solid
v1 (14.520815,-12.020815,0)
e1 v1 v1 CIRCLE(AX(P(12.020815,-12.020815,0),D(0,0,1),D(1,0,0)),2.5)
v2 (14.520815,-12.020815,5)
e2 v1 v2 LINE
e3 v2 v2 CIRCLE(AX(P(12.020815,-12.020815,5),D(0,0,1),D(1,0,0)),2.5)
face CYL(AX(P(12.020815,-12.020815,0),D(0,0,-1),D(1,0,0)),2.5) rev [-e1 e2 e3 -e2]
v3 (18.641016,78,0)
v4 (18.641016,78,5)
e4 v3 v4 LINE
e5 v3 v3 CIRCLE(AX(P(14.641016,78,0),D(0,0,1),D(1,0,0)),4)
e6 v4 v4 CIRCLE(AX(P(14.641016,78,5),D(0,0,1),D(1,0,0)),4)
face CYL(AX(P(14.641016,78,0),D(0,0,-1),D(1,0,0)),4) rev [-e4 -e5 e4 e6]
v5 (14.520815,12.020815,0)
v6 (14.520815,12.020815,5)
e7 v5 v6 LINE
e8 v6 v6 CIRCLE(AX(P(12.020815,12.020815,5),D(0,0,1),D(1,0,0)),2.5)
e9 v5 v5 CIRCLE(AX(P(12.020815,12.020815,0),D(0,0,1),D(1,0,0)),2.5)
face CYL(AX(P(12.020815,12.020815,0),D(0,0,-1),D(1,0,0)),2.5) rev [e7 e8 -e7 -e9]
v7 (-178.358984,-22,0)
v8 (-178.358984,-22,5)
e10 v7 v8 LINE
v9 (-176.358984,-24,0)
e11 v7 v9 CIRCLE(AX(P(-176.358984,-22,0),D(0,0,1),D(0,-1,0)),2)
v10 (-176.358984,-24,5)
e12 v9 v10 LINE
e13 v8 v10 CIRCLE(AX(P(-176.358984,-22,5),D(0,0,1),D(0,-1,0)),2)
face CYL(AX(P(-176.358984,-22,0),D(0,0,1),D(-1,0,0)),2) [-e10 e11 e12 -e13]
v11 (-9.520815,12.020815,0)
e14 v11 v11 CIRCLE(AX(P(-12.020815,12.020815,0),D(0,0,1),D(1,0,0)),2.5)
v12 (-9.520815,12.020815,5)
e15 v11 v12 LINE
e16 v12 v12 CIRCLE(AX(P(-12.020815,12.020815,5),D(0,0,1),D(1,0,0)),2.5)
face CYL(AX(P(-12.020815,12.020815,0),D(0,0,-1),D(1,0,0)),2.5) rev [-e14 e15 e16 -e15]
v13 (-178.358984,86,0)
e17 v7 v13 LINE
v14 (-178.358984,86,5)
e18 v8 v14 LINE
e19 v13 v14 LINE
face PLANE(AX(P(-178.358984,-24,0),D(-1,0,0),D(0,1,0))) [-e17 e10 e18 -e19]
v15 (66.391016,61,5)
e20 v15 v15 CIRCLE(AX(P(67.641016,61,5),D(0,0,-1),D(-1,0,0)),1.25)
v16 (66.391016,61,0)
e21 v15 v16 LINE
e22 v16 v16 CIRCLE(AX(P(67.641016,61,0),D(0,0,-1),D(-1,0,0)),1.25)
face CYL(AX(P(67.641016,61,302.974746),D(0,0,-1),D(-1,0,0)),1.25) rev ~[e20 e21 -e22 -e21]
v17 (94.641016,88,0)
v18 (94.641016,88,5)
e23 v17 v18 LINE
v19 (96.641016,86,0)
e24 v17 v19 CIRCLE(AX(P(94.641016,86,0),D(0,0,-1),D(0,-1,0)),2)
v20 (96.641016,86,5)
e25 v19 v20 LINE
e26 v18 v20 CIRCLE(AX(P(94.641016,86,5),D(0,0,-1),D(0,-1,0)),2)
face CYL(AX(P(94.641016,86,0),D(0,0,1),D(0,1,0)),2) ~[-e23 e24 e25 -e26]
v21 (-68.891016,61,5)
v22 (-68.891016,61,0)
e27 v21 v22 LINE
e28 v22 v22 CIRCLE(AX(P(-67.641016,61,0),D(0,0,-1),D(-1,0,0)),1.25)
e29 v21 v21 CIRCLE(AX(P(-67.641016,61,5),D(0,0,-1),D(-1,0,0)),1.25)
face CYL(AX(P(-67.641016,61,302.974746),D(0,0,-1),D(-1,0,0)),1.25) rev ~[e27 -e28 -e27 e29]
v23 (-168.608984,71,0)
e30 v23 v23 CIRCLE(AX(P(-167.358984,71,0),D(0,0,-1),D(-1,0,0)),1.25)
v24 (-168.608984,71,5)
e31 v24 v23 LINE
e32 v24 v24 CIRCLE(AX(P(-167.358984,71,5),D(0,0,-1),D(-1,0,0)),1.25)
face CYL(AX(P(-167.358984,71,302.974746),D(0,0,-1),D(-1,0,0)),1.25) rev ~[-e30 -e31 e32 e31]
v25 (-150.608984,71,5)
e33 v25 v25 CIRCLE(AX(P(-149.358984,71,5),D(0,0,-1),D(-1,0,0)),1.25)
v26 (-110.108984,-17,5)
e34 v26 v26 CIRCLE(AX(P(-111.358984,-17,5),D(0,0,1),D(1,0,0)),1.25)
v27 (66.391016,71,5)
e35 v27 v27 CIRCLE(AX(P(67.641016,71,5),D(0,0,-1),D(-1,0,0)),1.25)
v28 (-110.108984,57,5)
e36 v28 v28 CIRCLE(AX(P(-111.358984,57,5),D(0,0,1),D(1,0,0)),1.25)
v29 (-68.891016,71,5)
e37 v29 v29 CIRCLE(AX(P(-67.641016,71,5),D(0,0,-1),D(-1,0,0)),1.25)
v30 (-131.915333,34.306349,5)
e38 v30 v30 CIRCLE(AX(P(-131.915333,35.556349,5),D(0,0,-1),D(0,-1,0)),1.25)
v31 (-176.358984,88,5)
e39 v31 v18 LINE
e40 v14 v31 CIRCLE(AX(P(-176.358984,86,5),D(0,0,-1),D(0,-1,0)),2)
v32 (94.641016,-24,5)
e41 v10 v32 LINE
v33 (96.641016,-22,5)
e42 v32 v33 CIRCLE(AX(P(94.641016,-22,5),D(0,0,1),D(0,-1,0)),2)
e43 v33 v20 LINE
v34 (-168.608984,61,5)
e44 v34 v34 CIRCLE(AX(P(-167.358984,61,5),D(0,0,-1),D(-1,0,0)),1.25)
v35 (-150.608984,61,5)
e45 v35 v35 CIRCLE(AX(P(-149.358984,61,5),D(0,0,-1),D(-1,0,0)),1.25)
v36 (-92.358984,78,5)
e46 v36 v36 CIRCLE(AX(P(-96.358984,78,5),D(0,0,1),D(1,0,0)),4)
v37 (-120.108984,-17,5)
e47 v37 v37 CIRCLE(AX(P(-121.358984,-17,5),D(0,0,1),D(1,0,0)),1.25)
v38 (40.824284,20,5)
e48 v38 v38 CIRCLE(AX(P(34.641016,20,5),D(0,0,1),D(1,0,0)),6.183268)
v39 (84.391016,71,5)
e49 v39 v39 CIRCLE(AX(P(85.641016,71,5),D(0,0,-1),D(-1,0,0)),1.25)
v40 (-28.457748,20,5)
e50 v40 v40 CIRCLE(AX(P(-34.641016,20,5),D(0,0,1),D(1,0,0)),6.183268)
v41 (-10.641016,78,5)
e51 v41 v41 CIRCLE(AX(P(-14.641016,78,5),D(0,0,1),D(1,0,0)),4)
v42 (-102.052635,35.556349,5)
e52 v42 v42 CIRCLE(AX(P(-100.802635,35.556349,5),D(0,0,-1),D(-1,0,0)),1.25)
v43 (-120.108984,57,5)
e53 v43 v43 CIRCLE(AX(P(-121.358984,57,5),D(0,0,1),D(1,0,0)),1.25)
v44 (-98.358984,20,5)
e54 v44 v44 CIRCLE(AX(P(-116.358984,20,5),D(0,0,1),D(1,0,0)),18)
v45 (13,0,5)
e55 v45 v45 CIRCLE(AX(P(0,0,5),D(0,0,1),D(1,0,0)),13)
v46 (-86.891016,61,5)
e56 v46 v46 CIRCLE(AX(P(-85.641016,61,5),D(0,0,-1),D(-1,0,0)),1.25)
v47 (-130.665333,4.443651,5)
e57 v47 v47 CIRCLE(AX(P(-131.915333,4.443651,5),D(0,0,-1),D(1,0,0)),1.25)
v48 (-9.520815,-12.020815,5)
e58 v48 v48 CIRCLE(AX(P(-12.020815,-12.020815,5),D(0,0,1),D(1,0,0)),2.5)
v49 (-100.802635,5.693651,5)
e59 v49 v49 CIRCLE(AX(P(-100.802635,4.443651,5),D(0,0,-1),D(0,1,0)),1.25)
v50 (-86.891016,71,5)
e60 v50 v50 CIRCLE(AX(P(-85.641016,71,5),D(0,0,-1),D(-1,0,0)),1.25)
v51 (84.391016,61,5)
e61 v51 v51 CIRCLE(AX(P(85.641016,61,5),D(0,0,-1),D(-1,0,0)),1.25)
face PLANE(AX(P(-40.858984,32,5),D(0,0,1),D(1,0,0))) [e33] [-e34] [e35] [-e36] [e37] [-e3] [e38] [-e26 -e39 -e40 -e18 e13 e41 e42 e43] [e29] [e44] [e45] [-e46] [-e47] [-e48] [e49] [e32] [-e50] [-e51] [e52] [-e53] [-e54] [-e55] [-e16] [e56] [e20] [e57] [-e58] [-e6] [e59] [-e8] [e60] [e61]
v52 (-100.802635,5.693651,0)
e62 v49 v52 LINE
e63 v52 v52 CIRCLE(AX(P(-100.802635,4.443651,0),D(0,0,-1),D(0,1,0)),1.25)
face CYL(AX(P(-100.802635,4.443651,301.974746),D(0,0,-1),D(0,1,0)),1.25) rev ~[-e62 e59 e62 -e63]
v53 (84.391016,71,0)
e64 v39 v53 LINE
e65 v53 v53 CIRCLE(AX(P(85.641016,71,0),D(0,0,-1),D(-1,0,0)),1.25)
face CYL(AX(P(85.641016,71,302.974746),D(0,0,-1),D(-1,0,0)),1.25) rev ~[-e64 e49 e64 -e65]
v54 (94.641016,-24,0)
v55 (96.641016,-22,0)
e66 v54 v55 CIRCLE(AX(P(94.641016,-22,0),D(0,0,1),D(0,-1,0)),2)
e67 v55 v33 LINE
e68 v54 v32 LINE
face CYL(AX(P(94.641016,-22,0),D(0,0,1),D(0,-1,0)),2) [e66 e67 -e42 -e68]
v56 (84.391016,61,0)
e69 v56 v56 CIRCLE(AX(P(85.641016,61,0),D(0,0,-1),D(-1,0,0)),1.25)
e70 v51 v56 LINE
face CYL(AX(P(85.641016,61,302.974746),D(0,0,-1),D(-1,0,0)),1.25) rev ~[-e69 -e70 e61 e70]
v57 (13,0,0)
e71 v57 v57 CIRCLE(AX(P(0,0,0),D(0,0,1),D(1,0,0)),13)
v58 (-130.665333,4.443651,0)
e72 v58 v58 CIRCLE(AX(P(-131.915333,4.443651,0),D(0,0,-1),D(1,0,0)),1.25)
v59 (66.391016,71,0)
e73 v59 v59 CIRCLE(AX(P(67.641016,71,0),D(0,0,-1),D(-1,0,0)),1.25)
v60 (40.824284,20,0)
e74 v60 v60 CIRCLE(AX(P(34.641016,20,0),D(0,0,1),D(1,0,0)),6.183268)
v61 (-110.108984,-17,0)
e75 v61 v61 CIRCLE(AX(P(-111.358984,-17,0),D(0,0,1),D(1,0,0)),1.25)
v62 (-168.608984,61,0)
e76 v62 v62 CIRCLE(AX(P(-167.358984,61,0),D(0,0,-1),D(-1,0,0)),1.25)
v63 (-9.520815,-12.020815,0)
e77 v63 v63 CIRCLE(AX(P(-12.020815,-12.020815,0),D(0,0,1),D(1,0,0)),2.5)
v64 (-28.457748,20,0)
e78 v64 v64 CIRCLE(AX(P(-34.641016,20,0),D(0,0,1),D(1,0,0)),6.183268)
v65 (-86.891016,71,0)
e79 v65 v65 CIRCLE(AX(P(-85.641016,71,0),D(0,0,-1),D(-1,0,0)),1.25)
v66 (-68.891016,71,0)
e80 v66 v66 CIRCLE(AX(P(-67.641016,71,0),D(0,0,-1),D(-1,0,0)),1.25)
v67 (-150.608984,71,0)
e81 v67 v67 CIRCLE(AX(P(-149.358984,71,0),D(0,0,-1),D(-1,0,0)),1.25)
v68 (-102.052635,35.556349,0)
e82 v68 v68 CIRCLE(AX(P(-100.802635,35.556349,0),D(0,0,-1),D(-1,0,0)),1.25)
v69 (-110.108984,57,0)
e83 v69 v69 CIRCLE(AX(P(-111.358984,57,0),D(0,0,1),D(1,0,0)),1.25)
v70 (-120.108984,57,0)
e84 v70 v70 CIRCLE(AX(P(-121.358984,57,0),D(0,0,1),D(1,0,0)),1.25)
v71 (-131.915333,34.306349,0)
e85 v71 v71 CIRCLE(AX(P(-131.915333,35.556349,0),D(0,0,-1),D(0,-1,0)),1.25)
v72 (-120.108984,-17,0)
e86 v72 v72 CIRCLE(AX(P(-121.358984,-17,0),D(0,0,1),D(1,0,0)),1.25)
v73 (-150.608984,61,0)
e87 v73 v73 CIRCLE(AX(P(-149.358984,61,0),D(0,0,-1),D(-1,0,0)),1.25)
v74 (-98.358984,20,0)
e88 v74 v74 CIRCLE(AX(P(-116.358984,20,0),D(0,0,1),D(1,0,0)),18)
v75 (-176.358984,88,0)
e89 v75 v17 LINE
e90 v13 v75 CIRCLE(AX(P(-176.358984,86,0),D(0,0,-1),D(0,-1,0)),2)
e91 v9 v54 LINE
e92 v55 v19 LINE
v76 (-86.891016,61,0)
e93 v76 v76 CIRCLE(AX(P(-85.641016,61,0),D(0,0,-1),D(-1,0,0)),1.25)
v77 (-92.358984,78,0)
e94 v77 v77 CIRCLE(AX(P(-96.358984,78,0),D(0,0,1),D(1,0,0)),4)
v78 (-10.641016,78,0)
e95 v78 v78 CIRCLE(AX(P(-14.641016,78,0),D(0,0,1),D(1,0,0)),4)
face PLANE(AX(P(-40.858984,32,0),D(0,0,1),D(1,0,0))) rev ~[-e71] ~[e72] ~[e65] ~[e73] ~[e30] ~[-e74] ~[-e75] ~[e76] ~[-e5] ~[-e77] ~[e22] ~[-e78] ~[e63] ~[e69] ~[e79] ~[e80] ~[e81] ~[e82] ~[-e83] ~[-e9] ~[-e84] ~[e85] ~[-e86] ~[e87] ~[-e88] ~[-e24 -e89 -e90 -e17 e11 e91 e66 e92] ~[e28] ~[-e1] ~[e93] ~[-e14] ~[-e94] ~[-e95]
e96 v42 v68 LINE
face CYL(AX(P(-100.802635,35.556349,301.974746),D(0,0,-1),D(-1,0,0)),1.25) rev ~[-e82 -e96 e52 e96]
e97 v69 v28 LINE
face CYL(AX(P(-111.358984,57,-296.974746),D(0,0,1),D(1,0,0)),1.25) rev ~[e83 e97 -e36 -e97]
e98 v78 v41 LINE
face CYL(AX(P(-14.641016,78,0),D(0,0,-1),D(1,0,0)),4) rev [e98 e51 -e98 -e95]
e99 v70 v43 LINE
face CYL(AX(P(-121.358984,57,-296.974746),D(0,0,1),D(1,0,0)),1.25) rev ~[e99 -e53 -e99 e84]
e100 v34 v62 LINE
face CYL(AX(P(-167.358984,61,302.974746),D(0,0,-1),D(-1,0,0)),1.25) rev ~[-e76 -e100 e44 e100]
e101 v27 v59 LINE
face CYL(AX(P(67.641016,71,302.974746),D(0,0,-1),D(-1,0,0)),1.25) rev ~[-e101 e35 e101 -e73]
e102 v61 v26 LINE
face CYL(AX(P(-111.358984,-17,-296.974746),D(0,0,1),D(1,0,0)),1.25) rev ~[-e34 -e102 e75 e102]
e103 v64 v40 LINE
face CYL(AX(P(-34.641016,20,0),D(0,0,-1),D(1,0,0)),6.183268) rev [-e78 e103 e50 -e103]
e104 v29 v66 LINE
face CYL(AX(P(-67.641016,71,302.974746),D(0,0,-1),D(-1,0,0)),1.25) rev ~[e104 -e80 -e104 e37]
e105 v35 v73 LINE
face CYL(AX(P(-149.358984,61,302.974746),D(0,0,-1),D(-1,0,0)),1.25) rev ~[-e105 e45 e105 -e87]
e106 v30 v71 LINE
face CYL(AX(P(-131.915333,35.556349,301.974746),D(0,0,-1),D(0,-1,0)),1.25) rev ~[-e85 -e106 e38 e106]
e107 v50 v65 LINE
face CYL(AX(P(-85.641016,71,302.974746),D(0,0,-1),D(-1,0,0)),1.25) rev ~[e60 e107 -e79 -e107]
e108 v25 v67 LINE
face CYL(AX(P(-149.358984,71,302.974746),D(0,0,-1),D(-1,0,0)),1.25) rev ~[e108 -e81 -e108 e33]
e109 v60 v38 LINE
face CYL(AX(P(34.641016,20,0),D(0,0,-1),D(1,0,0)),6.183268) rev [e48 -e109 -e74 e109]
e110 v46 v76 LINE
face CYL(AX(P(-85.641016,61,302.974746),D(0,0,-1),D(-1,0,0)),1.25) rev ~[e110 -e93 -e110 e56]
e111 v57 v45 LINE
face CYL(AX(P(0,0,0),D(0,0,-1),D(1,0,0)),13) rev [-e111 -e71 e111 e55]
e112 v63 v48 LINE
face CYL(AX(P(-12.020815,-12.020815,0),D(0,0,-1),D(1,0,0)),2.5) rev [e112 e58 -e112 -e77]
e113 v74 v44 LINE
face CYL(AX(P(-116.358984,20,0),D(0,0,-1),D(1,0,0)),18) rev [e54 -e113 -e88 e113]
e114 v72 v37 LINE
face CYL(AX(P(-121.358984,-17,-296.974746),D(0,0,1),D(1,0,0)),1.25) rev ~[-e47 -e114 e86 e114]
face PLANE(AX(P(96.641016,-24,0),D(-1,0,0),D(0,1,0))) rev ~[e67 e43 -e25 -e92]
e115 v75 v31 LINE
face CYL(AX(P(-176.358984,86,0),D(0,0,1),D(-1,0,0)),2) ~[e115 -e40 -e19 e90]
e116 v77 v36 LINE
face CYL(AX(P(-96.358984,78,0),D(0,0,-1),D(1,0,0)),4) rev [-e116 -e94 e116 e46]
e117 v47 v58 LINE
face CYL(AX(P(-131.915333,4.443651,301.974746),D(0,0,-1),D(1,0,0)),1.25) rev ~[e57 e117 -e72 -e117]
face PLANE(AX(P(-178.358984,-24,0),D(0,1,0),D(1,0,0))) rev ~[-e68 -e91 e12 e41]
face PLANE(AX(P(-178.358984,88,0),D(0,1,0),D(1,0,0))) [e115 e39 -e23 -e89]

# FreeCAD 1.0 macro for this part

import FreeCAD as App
import Part
import Sketcher

V = App.Vector
Q = App.Units.Quantity


def edges_at(feature, points):
    """Names of the edges that pass closest to the given points."""
    edges = feature.Shape.Edges
    near = lambda p: min(range(len(edges)), key=lambda i: edges[i].distToShape(Part.Vertex(*p))[0])
    return sorted({f"Edge{near(p) + 1}" for p in points})


def add_polygon(sketch, points):
    """Adds a closed chain of lines whose ends are joined by coincident constraints."""
    first, n = sketch.GeometryCount, len(points)
    for a, b in zip(points, points[1:] + points[:1]):
        sketch.addGeometry(Part.LineSegment(App.Vector(*a, 0), App.Vector(*b, 0)), False)
    for i in range(n):
        sketch.addConstraint(Sketcher.Constraint("Coincident", first + i, 2, first + (i + 1) % n, 1))

doc = App.newDocument("Part")
body = doc.addObject("PartDesign::Body", "Body")

# Sketch on XY plane
sketch1 = body.newObject("Sketcher::SketchObject", "Sketch")
sketch1.AttachmentSupport = (doc.getObject("XY_Plane"), [""])
sketch1.MapMode = "FlatFace"
add_polygon(sketch1, [(-178.4, 88), (-178.4, -24), (96.6, -24), (96.6, 88)])  # lines 0-3
sketch1.addGeometry(Part.Circle(V(-116.4, 20, 0), V(0, 0, 1), 18), False)  # 4
sketch1.addGeometry(Part.Circle(V(-12, -12, 0), V(0, 0, 1), 2.5), False)  # 5
sketch1.addGeometry(Part.Circle(V(12, -12, 0), V(0, 0, 1), 2.5), False)  # 6
sketch1.addGeometry(Part.Circle(V(0, 0, 0), V(0, 0, 1), 13), False)  # 7
sketch1.addGeometry(Part.Circle(V(-34.6, 20, 0), V(0, 0, 1), 6.2), False)  # 8
sketch1.addGeometry(Part.Circle(V(-12, 12, 0), V(0, 0, 1), 2.5), False)  # 9
sketch1.addGeometry(Part.Circle(V(12, 12, 0), V(0, 0, 1), 2.5), False)  # 10
sketch1.addGeometry(Part.Circle(V(34.6, 20, 0), V(0, 0, 1), 6.2), False)  # 11
sketch1.addGeometry(Part.Circle(V(-96.4, 78, 0), V(0, 0, 1), 4), False)  # 12
sketch1.addGeometry(Part.Circle(V(-14.6, 78, 0), V(0, 0, 1), 4), False)  # 13
sketch1.addGeometry(Part.Circle(V(14.6, 78, 0), V(0, 0, 1), 4), False)  # 14
sketch1.addConstraint([
    Sketcher.Constraint("Vertical", 0),
    Sketcher.Constraint("Horizontal", 1),
    Sketcher.Constraint("Vertical", 2),
    Sketcher.Constraint("Horizontal", 3),
    Sketcher.Constraint("Coincident", 7, 3, -1, 1),
    Sketcher.Constraint("Equal", 5, 6),
    Sketcher.Constraint("Equal", 6, 9),
    Sketcher.Constraint("Equal", 9, 10),
    Sketcher.Constraint("Equal", 8, 11),
    Sketcher.Constraint("Equal", 12, 13),
    Sketcher.Constraint("Equal", 13, 14),
    Sketcher.Constraint("Symmetric", 6, 3, 9, 3, -1, 1),
    Sketcher.Constraint("Symmetric", 5, 3, 10, 3, -1, 1),
    Sketcher.Constraint("Symmetric", 5, 3, 6, 3, -2),
    Sketcher.Constraint("Symmetric", 8, 3, 11, 3, -2),
    Sketcher.Constraint("Symmetric", 13, 3, 14, 3, -2),
    Sketcher.Constraint("Horizontal", 4, 3, 8, 3),
    Sketcher.Constraint("Horizontal", 12, 3, 13, 3),
    Sketcher.Constraint("Diameter", 4, Q("36 mm")),
    Sketcher.Constraint("Diameter", 5, Q("5 mm")),
    Sketcher.Constraint("Diameter", 7, Q("26 mm")),
    Sketcher.Constraint("Diameter", 12, Q("8 mm")),
    Sketcher.Constraint("DistanceX", 1, 1, 1, 2, Q("275 mm")),
    Sketcher.Constraint("DistanceY", 0, 2, 0, 1, Q("112 mm")),
    Sketcher.Constraint("DistanceY", -1, 1, 4, 3, Q("20 mm")),
    Sketcher.Constraint("DistanceY", -1, 1, 12, 3, Q("78 mm")),
    Sketcher.Constraint("DistanceY", 0, 2, -1, 1, Q("24 mm")),
    Sketcher.Constraint("DistanceX", 4, 3, 12, 3, Q("20 mm")),
    Sketcher.Constraint("DistanceX", 8, 3, 13, 3, Q("20 mm")),
    Sketcher.Constraint("DistanceX", 0, 2, 4, 3, Q("62 mm")),
    Sketcher.Constraint("DistanceX", 11, 3, 1, 2, Q("62 mm")),
    Sketcher.Constraint("Diameter", 8, Q("12.366536 mm")),
    Sketcher.Constraint("DistanceX", 4, 3, 6, 3, Q("128.379799 mm")),
    Sketcher.Constraint("DistanceX", 4, 3, 5, 3, Q("104.338169 mm")),
    Sketcher.Constraint("DistanceY", 5, 3, 9, 3, Q("24.041631 mm")),
])
pad1 = body.newObject("PartDesign::Pad", "Pad")
pad1.Profile = sketch1
pad1.Length = 5

# Sketch on XY plane
sketch2 = body.newObject("Sketcher::SketchObject", "Sketch001")
sketch2.AttachmentSupport = (doc.getObject("XY_Plane"), [""])
sketch2.MapMode = "FlatFace"
sketch2.addGeometry([
    Part.Circle(V(-111.4, 57, 0), V(0, 0, 1), 1.2),
    Part.Circle(V(-121.4, 57, 0), V(0, 0, 1), 1.2),
    Part.Circle(V(-111.4, -17, 0), V(0, 0, 1), 1.2),
    Part.Circle(V(-121.4, -17, 0), V(0, 0, 1), 1.2),
], False)
sketch2.addConstraint([
    Sketcher.Constraint("Equal", 0, 1),
    Sketcher.Constraint("Equal", 1, 2),
    Sketcher.Constraint("Equal", 2, 3),
    Sketcher.Constraint("Horizontal", 0, 3, 1, 3),
    Sketcher.Constraint("Horizontal", 2, 3, 3, 3),
    Sketcher.Constraint("Vertical", 0, 3, 2, 3),
    Sketcher.Constraint("Vertical", 1, 3, 3, 3),
    Sketcher.Constraint("Diameter", 0, Q("2.5 mm")),
    Sketcher.Constraint("DistanceY", -1, 1, 0, 3, Q("57 mm")),
    Sketcher.Constraint("DistanceY", 2, 3, -1, 1, Q("17 mm")),
    Sketcher.Constraint("DistanceX", 1, 3, 0, 3, Q("10 mm")),
    Sketcher.Constraint("DistanceX", 0, 3, -1, 1, Q("111.358984 mm")),
])
doc.recompute()
hole = body.newObject("PartDesign::Hole", "Hole")
hole.Profile = sketch2
hole.ThreadType = "None"
hole.Diameter = 2.5
hole.DepthType = "ThroughAll"
hole.Reversed = True

# Sketch on XY plane
sketch3 = body.newObject("Sketcher::SketchObject", "Sketch002")
sketch3.AttachmentSupport = (doc.getObject("XY_Plane"), [""])
sketch3.MapMode = "FlatFace"
sketch3.AttachmentOffset = App.Placement(V(0, 0, 6), App.Rotation())
sketch3.addGeometry([
    Part.Circle(V(-167.4, 71, 0), V(0, 0, 1), 1.2),  # 0
    Part.Circle(V(-167.4, 61, 0), V(0, 0, 1), 1.2),  # 1
    Part.Circle(V(-149.4, 61, 0), V(0, 0, 1), 1.2),  # 2
    Part.Circle(V(-149.4, 71, 0), V(0, 0, 1), 1.2),  # 3
    Part.Circle(V(-85.6, 71, 0), V(0, 0, 1), 1.2),  # 4
    Part.Circle(V(-85.6, 61, 0), V(0, 0, 1), 1.2),  # 5
    Part.Circle(V(-67.6, 61, 0), V(0, 0, 1), 1.2),  # 6
    Part.Circle(V(-67.6, 71, 0), V(0, 0, 1), 1.2),  # 7
    Part.Circle(V(67.6, 71, 0), V(0, 0, 1), 1.2),  # 8
    Part.Circle(V(67.6, 61, 0), V(0, 0, 1), 1.2),  # 9
    Part.Circle(V(85.6, 71, 0), V(0, 0, 1), 1.2),  # 10
    Part.Circle(V(85.6, 61, 0), V(0, 0, 1), 1.2),  # 11
], False)
sketch3.addConstraint([
    Sketcher.Constraint("Equal", 0, 1),
    Sketcher.Constraint("Equal", 1, 2),
    Sketcher.Constraint("Equal", 2, 3),
    Sketcher.Constraint("Equal", 3, 4),
    Sketcher.Constraint("Equal", 4, 5),
    Sketcher.Constraint("Equal", 5, 6),
    Sketcher.Constraint("Equal", 6, 7),
    Sketcher.Constraint("Equal", 7, 8),
    Sketcher.Constraint("Equal", 8, 9),
    Sketcher.Constraint("Equal", 9, 10),
    Sketcher.Constraint("Equal", 10, 11),
    Sketcher.Constraint("Symmetric", 7, 3, 8, 3, -2),
    Sketcher.Constraint("Symmetric", 6, 3, 9, 3, -2),
    Sketcher.Constraint("Symmetric", 4, 3, 10, 3, -2),
    Sketcher.Constraint("Symmetric", 5, 3, 11, 3, -2),
    Sketcher.Constraint("Horizontal", 1, 3, 2, 3),
    Sketcher.Constraint("Horizontal", 0, 3, 3, 3),
    Sketcher.Constraint("Horizontal", 3, 3, 4, 3),
    Sketcher.Constraint("Horizontal", 2, 3, 5, 3),
    Sketcher.Constraint("Horizontal", 5, 3, 6, 3),
    Sketcher.Constraint("Horizontal", 4, 3, 7, 3),
    Sketcher.Constraint("Vertical", 0, 3, 1, 3),
    Sketcher.Constraint("Vertical", 2, 3, 3, 3),
    Sketcher.Constraint("Vertical", 4, 3, 5, 3),
    Sketcher.Constraint("Vertical", 6, 3, 7, 3),
    Sketcher.Constraint("Diameter", 0, Q("2.5 mm")),
    Sketcher.Constraint("DistanceY", -1, 1, 0, 3, Q("71 mm")),
    Sketcher.Constraint("DistanceY", -1, 1, 1, 3, Q("61 mm")),
    Sketcher.Constraint("DistanceX", 1, 3, 2, 3, Q("18 mm")),
    Sketcher.Constraint("DistanceX", 5, 3, 6, 3, Q("18 mm")),
    Sketcher.Constraint("DistanceX", 3, 3, 8, 3, Q("217 mm")),
    Sketcher.Constraint("DistanceX", 0, 3, -1, 1, Q("167.358984 mm")),
])
doc.recompute()
hole2 = body.newObject("PartDesign::Hole", "Hole001")
hole2.Profile = sketch3
hole2.ThreadType = "None"
hole2.Diameter = 2.5
hole2.DepthType = "ThroughAll"
doc.recompute()

fillet = body.newObject("PartDesign::Fillet", "Fillet")
fillet.Base = (hole2, edges_at(hole2, [
    (-178.359, 88, 2.5),
    (96.641, 88, 2.5),
    (96.641, -24, 2.5),
    (-178.359, -24, 2.5),
]))
fillet.Radius = 2

# Sketch on XY plane
sketch4 = body.newObject("Sketcher::SketchObject", "Sketch003")
sketch4.AttachmentSupport = (doc.getObject("XY_Plane"), [""])
sketch4.MapMode = "FlatFace"
sketch4.AttachmentOffset = App.Placement(V(0, 0, 5), App.Rotation())
sketch4.addGeometry(Part.Circle(V(-100.8, 35.6, 0), V(0, 0, 1), 1.2), False)
sketch4.addConstraint([
    Sketcher.Constraint("Diameter", 0, Q("2.5 mm")),
    Sketcher.Constraint("DistanceY", -1, 1, 0, 3, Q("35.556349 mm")),
    Sketcher.Constraint("DistanceX", 0, 3, -1, 1, Q("100.802635 mm")),
])
doc.recompute()
hole3 = body.newObject("PartDesign::Hole", "Hole002")
hole3.Profile = sketch4
hole3.ThreadType = "None"
hole3.Diameter = 2.5
hole3.DepthType = "ThroughAll"
doc.recompute()

datumline = body.newObject("PartDesign::Line", "DatumLine")
datumline.Placement = App.Placement(V(-116.358984, 20, 0), App.Rotation(V(0, 0, 1), V(0, 0, 1)))
polarpattern = body.newObject("PartDesign::PolarPattern", "PolarPattern")
polarpattern.Originals = [hole3]
polarpattern.Axis = (datumline, [""])
polarpattern.Angle = 360
polarpattern.Occurrences = 4
body.Tip = polarpattern

doc.recompute()
